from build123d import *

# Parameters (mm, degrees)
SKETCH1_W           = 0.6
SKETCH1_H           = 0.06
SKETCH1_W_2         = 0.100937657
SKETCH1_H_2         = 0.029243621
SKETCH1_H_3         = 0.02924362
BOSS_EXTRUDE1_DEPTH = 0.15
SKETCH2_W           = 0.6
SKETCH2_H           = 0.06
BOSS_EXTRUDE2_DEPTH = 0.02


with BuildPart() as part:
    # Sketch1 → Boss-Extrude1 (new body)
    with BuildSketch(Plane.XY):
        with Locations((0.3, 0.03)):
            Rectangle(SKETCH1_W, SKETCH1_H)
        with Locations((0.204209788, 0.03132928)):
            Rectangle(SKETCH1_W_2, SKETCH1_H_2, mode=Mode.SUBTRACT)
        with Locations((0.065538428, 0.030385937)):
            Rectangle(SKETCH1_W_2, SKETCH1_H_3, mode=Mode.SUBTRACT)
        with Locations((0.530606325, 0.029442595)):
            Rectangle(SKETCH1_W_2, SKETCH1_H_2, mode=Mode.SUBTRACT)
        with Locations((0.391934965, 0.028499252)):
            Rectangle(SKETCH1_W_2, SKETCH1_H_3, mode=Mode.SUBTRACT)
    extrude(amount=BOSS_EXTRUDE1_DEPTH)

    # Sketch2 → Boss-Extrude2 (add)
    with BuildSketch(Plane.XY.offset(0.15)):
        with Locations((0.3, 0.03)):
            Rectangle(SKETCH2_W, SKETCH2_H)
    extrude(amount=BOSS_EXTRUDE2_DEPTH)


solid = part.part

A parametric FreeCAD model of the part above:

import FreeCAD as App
import Part
import Sketcher

V = App.Vector
Q = App.Units.Quantity

doc = App.newDocument("Part")
body = doc.addObject("PartDesign::Body", "Body")

# Sketch on XY plane
sketch1 = body.newObject("Sketcher::SketchObject", "Sketch")
sketch1.AttachmentSupport = (doc.getObject("XY_Plane"), [""])
sketch1.MapMode = "FlatFace"
sketch1.addGeometry(Part.LineSegment(V(0, 0.06, 0), V(0, 0, 0)), False)
sketch1.addGeometry(Part.LineSegment(V(0, 0, 0), V(0.6, 0, 0)), False)
sketch1.addGeometry(Part.LineSegment(V(0.6, 0, 0), V(0.6, 0.06, 0)), False)
sketch1.addGeometry(Part.LineSegment(V(0.6, 0.06, 0), V(0, 0.06, 0)), False)
sketch1.addGeometry(Part.LineSegment(V(0.442, 0.014, 0), V(0.341, 0.014, 0)), False)
sketch1.addGeometry(Part.LineSegment(V(0.341, 0.014, 0), V(0.341, 0.043, 0)), False)
sketch1.addGeometry(Part.LineSegment(V(0.341, 0.043, 0), V(0.442, 0.043, 0)), False)
sketch1.addGeometry(Part.LineSegment(V(0.442, 0.043, 0), V(0.442, 0.014, 0)), False)
sketch1.addGeometry(Part.LineSegment(V(0.581, 0.015, 0), V(0.48, 0.015, 0)), False)
sketch1.addGeometry(Part.LineSegment(V(0.48, 0.015, 0), V(0.48, 0.044, 0)), False)
sketch1.addGeometry(Part.LineSegment(V(0.48, 0.044, 0), V(0.581, 0.044, 0)), False)
sketch1.addGeometry(Part.LineSegment(V(0.581, 0.044, 0), V(0.581, 0.015, 0)), False)
sketch1.addGeometry(Part.LineSegment(V(0.116, 0.016, 0), V(0.015, 0.016, 0)), False)
sketch1.addGeometry(Part.LineSegment(V(0.015, 0.016, 0), V(0.015, 0.045, 0)), False)
sketch1.addGeometry(Part.LineSegment(V(0.015, 0.045, 0), V(0.116, 0.045, 0)), False)
sketch1.addGeometry(Part.LineSegment(V(0.116, 0.045, 0), V(0.116, 0.016, 0)), False)
sketch1.addGeometry(Part.LineSegment(V(0.255, 0.017, 0), V(0.154, 0.017, 0)), False)
sketch1.addGeometry(Part.LineSegment(V(0.154, 0.017, 0), V(0.154, 0.046, 0)), False)
sketch1.addGeometry(Part.LineSegment(V(0.154, 0.046, 0), V(0.255, 0.046, 0)), False)
sketch1.addGeometry(Part.LineSegment(V(0.255, 0.046, 0), V(0.255, 0.017, 0)), False)
sketch1.addConstraint(Sketcher.Constraint("Coincident", 0, 2, 1, 1))
sketch1.addConstraint(Sketcher.Constraint("Coincident", 1, 2, 2, 1))
sketch1.addConstraint(Sketcher.Constraint("Coincident", 2, 2, 3, 1))
sketch1.addConstraint(Sketcher.Constraint("Coincident", 3, 2, 0, 1))
sketch1.addConstraint(Sketcher.Constraint("Coincident", 4, 2, 5, 1))
sketch1.addConstraint(Sketcher.Constraint("Coincident", 5, 2, 6, 1))
sketch1.addConstraint(Sketcher.Constraint("Coincident", 6, 2, 7, 1))
sketch1.addConstraint(Sketcher.Constraint("Coincident", 7, 2, 4, 1))
sketch1.addConstraint(Sketcher.Constraint("Coincident", 8, 2, 9, 1))
sketch1.addConstraint(Sketcher.Constraint("Coincident", 9, 2, 10, 1))
sketch1.addConstraint(Sketcher.Constraint("Coincident", 10, 2, 11, 1))
sketch1.addConstraint(Sketcher.Constraint("Coincident", 11, 2, 8, 1))
sketch1.addConstraint(Sketcher.Constraint("Coincident", 12, 2, 13, 1))
sketch1.addConstraint(Sketcher.Constraint("Coincident", 13, 2, 14, 1))
sketch1.addConstraint(Sketcher.Constraint("Coincident", 14, 2, 15, 1))
sketch1.addConstraint(Sketcher.Constraint("Coincident", 15, 2, 12, 1))
sketch1.addConstraint(Sketcher.Constraint("Coincident", 16, 2, 17, 1))
sketch1.addConstraint(Sketcher.Constraint("Coincident", 17, 2, 18, 1))
sketch1.addConstraint(Sketcher.Constraint("Coincident", 18, 2, 19, 1))
sketch1.addConstraint(Sketcher.Constraint("Coincident", 19, 2, 16, 1))
sketch1.addConstraint(Sketcher.Constraint("Vertical", 0))
sketch1.addConstraint(Sketcher.Constraint("Horizontal", 1))
sketch1.addConstraint(Sketcher.Constraint("Vertical", 2))
sketch1.addConstraint(Sketcher.Constraint("Horizontal", 3))
sketch1.addConstraint(Sketcher.Constraint("Horizontal", 4))
sketch1.addConstraint(Sketcher.Constraint("Vertical", 5))
sketch1.addConstraint(Sketcher.Constraint("Horizontal", 6))
sketch1.addConstraint(Sketcher.Constraint("Vertical", 7))
sketch1.addConstraint(Sketcher.Constraint("Horizontal", 8))
sketch1.addConstraint(Sketcher.Constraint("Vertical", 9))
sketch1.addConstraint(Sketcher.Constraint("Horizontal", 10))
sketch1.addConstraint(Sketcher.Constraint("Vertical", 11))
sketch1.addConstraint(Sketcher.Constraint("Horizontal", 12))
sketch1.addConstraint(Sketcher.Constraint("Vertical", 13))
sketch1.addConstraint(Sketcher.Constraint("Horizontal", 14))
sketch1.addConstraint(Sketcher.Constraint("Vertical", 15))
sketch1.addConstraint(Sketcher.Constraint("Horizontal", 16))
sketch1.addConstraint(Sketcher.Constraint("Vertical", 17))
sketch1.addConstraint(Sketcher.Constraint("Horizontal", 18))
sketch1.addConstraint(Sketcher.Constraint("Vertical", 19))
sketch1.addConstraint(Sketcher.Constraint("Coincident", 0, 2, -1, 1))
sketch1.addConstraint(Sketcher.Constraint("Equal", 6, 8))
sketch1.addConstraint(Sketcher.Constraint("Equal", 10, 12))
sketch1.addConstraint(Sketcher.Constraint("Equal", 14, 16))
sketch1.addConstraint(Sketcher.Constraint("Equal", 7, 9))
sketch1.addConstraint(Sketcher.Constraint("Equal", 11, 13))
sketch1.addConstraint(Sketcher.Constraint("Equal", 15, 17))
sketch1.addConstraint(Sketcher.Constraint("DistanceX", 1, 1, 1, 2, Q("0.6 mm")))
sketch1.addConstraint(Sketcher.Constraint("DistanceY", 0, 2, 0, 1, Q("0.06 mm")))
sketch1.addConstraint(Sketcher.Constraint("DistanceY", 8, 2, 6, 2, Q("0.0283 mm")))
sketch1.addConstraint(Sketcher.Constraint("DistanceY", 16, 2, 14, 2, Q("0.0283 mm")))
sketch1.addConstraint(Sketcher.Constraint("DistanceX", 4, 2, 4, 1, Q("0.100938 mm")))
sketch1.addConstraint(Sketcher.Constraint("DistanceY", 5, 1, 5, 2, Q("0.029244 mm")))
sketch1.addConstraint(Sketcher.Constraint("DistanceY", -1, 1, 5, 2, Q("0.043121 mm")))
sketch1.addConstraint(Sketcher.Constraint("DistanceX", -1, 1, 12, 2, Q("0.01507 mm")))
sketch1.addConstraint(Sketcher.Constraint("DistanceX", -1, 1, 16, 2, Q("0.153741 mm")))
sketch1.addConstraint(Sketcher.Constraint("DistanceY", -1, 1, 17, 2, Q("0.045951 mm")))
sketch1.addConstraint(Sketcher.Constraint("DistanceX", 4, 2, 8, 2, Q("0.138671 mm")))
sketch1.addConstraint(Sketcher.Constraint("DistanceX", 14, 2, 5, 2, Q("0.225459 mm")))
pad1 = body.newObject("PartDesign::Pad", "Pad")
pad1.Profile = sketch1
pad1.Length = 0.15

# Sketch on XY plane
sketch2 = body.newObject("Sketcher::SketchObject", "Sketch001")
sketch2.AttachmentSupport = (doc.getObject("XY_Plane"), [""])
sketch2.MapMode = "FlatFace"
sketch2.AttachmentOffset = App.Placement(V(0, 0, 0.15), App.Rotation())
sketch2.addGeometry(Part.LineSegment(V(0, 0.06, 0), V(0, 0, 0)), False)
sketch2.addGeometry(Part.LineSegment(V(0, 0, 0), V(0.6, 0, 0)), False)
sketch2.addGeometry(Part.LineSegment(V(0.6, 0, 0), V(0.6, 0.06, 0)), False)
sketch2.addGeometry(Part.LineSegment(V(0.6, 0.06, 0), V(0, 0.06, 0)), False)
sketch2.addConstraint(Sketcher.Constraint("Coincident", 0, 2, 1, 1))
sketch2.addConstraint(Sketcher.Constraint("Coincident", 1, 2, 2, 1))
sketch2.addConstraint(Sketcher.Constraint("Coincident", 2, 2, 3, 1))
sketch2.addConstraint(Sketcher.Constraint("Coincident", 3, 2, 0, 1))
sketch2.addConstraint(Sketcher.Constraint("Vertical", 0))
sketch2.addConstraint(Sketcher.Constraint("Horizontal", 1))
sketch2.addConstraint(Sketcher.Constraint("Vertical", 2))
sketch2.addConstraint(Sketcher.Constraint("Horizontal", 3))
sketch2.addConstraint(Sketcher.Constraint("Coincident", 0, 2, -1, 1))
sketch2.addConstraint(Sketcher.Constraint("DistanceX", 1, 1, 1, 2, Q("0.6 mm")))
sketch2.addConstraint(Sketcher.Constraint("DistanceY", 0, 2, 0, 1, Q("0.06 mm")))
pad2 = body.newObject("PartDesign::Pad", "Pad001")
pad2.Profile = sketch2
pad2.Length = 0.02

doc.recompute()
